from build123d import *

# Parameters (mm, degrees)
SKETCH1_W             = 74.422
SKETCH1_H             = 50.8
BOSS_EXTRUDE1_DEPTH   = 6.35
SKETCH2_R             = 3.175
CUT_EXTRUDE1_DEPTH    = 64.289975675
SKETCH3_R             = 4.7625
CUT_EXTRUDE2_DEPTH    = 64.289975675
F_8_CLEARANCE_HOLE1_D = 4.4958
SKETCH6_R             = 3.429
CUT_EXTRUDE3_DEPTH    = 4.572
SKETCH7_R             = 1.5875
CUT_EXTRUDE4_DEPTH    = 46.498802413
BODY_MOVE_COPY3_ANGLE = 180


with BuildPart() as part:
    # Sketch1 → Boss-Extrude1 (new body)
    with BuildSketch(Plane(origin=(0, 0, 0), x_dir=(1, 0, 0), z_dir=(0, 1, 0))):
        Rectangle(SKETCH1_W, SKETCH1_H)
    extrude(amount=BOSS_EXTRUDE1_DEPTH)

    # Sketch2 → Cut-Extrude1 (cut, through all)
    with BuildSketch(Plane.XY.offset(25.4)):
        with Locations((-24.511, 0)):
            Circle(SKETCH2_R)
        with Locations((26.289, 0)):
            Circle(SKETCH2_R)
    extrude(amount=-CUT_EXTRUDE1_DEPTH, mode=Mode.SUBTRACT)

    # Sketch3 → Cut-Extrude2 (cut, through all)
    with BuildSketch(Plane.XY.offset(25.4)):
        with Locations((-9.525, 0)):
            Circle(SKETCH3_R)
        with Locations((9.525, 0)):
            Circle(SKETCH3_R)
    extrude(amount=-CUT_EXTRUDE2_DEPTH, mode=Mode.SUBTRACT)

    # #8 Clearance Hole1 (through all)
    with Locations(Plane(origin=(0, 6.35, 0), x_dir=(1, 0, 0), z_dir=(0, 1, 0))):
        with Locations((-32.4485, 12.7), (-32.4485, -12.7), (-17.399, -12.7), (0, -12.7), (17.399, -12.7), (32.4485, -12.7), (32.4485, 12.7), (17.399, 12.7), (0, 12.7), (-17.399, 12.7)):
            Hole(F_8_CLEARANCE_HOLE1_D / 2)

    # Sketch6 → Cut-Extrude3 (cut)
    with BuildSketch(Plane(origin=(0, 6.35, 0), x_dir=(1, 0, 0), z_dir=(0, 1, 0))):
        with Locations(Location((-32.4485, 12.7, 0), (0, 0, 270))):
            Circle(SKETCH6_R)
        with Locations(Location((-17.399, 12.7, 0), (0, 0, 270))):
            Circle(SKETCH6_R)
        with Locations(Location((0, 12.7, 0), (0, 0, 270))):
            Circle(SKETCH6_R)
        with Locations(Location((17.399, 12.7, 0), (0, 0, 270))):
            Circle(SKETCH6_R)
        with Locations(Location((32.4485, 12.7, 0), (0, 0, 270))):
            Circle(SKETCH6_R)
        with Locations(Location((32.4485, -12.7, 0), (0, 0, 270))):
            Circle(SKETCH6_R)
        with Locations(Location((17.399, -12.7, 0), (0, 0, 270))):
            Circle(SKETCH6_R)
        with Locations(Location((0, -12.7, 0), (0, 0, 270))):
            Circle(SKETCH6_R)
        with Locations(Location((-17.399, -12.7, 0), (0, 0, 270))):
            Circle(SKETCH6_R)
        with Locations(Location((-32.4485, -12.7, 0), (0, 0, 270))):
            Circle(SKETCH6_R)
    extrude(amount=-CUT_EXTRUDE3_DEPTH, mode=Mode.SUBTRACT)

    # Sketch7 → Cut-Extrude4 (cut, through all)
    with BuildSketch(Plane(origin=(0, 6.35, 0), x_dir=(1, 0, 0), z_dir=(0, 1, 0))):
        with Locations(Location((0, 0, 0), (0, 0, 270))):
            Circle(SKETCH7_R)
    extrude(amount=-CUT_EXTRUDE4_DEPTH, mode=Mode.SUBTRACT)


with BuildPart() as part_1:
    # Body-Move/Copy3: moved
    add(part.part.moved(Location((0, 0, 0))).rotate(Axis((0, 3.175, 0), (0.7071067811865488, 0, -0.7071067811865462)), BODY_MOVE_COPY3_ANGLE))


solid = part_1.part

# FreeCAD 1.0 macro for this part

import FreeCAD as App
import Part
import Sketcher
Q = App.Units.Quantity

doc = App.newDocument("Part")
body = doc.addObject("PartDesign::Body", "Body")

# Sketch on XZ plane
sketch1 = body.newObject("Sketcher::SketchObject", "Sketch")
sketch1.AttachmentSupport = (doc.getObject("XZ_Plane"), [""])
sketch1.MapMode = "FlatFace"
sketch1.addGeometry(Part.LineSegment(App.Vector(-37, -25, 0), App.Vector(-37, 25, 0)), False)
sketch1.addGeometry(Part.LineSegment(App.Vector(-37, 25, 0), App.Vector(37, 25, 0)), False)
sketch1.addGeometry(Part.LineSegment(App.Vector(37, 25, 0), App.Vector(37, -25, 0)), False)
sketch1.addGeometry(Part.LineSegment(App.Vector(37, -25, 0), App.Vector(-37, -25, 0)), False)
sketch1.addConstraint(Sketcher.Constraint("Coincident", 0, 2, 1, 1))
sketch1.addConstraint(Sketcher.Constraint("Coincident", 1, 2, 2, 1))
sketch1.addConstraint(Sketcher.Constraint("Coincident", 2, 2, 3, 1))
sketch1.addConstraint(Sketcher.Constraint("Coincident", 3, 2, 0, 1))
sketch1.addConstraint(Sketcher.Constraint("Vertical", 0))
sketch1.addConstraint(Sketcher.Constraint("Horizontal", 1))
sketch1.addConstraint(Sketcher.Constraint("Vertical", 2))
sketch1.addConstraint(Sketcher.Constraint("Horizontal", 3))
sketch1.addConstraint(Sketcher.Constraint("Symmetric", 0, 2, 2, 2, -1, 1))
sketch1.addConstraint(Sketcher.Constraint("DistanceY", 0, 1, 0, 2, Q("2 in")))
sketch1.addConstraint(Sketcher.Constraint("DistanceX", 1, 1, 1, 2, Q("2.93 in")))
pad1 = body.newObject("PartDesign::Pad", "Pad")
pad1.Profile = sketch1
pad1.Length = Q("0.25 in")
pad1.Reversed = True

# Sketch on XY plane
sketch2 = body.newObject("Sketcher::SketchObject", "Sketch001")
sketch2.AttachmentSupport = (doc.getObject("XY_Plane"), [""])
sketch2.MapMode = "FlatFace"
sketch2.AttachmentOffset = App.Placement(App.Vector(0, 0, 1 * 25.4), App.Rotation())
sketch2.addGeometry(Part.Circle(App.Vector(-24.5, 0, 0), App.Vector(0, 0, 1), 3.2), False)
sketch2.addGeometry(Part.Circle(App.Vector(26.3, 0, 0), App.Vector(0, 0, 1), 3.2), False)
sketch2.addConstraint(Sketcher.Constraint("Equal", 0, 1))
sketch2.addConstraint(Sketcher.Constraint("PointOnObject", 0, 3, -1))
sketch2.addConstraint(Sketcher.Constraint("PointOnObject", 1, 3, -1))
sketch2.addConstraint(Sketcher.Constraint("Diameter", 0, Q("0.25 in")))
sketch2.addConstraint(Sketcher.Constraint("DistanceX", 0, 3, 1, 3, Q("2 in")))
sketch2.addConstraint(Sketcher.Constraint("DistanceX", 0, 3, -1, 1, Q("0.965 in")))
pocket1 = body.newObject("PartDesign::Pocket", "Pocket")
pocket1.Profile = sketch2
pocket1.Type = "ThroughAll"

# Sketch on XY plane
sketch3 = body.newObject("Sketcher::SketchObject", "Sketch002")
sketch3.AttachmentSupport = (doc.getObject("XY_Plane"), [""])
sketch3.MapMode = "FlatFace"
sketch3.AttachmentOffset = App.Placement(App.Vector(0, 0, 1 * 25.4), App.Rotation())
sketch3.addGeometry(Part.Circle(App.Vector(-9.5, 0, 0), App.Vector(0, 0, 1), 4.8), False)
sketch3.addGeometry(Part.Circle(App.Vector(9.5, 0, 0), App.Vector(0, 0, 1), 4.8), False)
sketch3.addConstraint(Sketcher.Constraint("Equal", 0, 1))
sketch3.addConstraint(Sketcher.Constraint("Symmetric", 0, 3, 1, 3, -1, 1))
sketch3.addConstraint(Sketcher.Constraint("PointOnObject", 0, 3, -1))
sketch3.addConstraint(Sketcher.Constraint("Diameter", 0, Q("0.375 in")))
sketch3.addConstraint(Sketcher.Constraint("DistanceX", 0, 3, 1, 3, Q("0.75 in")))
pocket2 = body.newObject("PartDesign::Pocket", "Pocket001")
pocket2.Profile = sketch3
pocket2.Type = "ThroughAll"

# Sketch on XZ plane
sketch4 = body.newObject("Sketcher::SketchObject", "Sketch003")
sketch4.AttachmentSupport = (doc.getObject("XZ_Plane"), [""])
sketch4.MapMode = "FlatFace"
sketch4.AttachmentOffset = App.Placement(App.Vector(0, 0, -0.25 * 25.4), App.Rotation())
sketch4.addGeometry(Part.Circle(App.Vector(-32.4, -12.7, 0), App.Vector(0, 0, 1), 2.2), False)
sketch4.addGeometry(Part.Circle(App.Vector(-32.4, 12.7, 0), App.Vector(0, 0, 1), 2.2), False)
sketch4.addGeometry(Part.Circle(App.Vector(-17.4, 12.7, 0), App.Vector(0, 0, 1), 2.2), False)
sketch4.addGeometry(Part.Circle(App.Vector(0, 12.7, 0), App.Vector(0, 0, 1), 2.2), False)
sketch4.addGeometry(Part.Circle(App.Vector(17.4, 12.7, 0), App.Vector(0, 0, 1), 2.2), False)
sketch4.addGeometry(Part.Circle(App.Vector(32.4, 12.7, 0), App.Vector(0, 0, 1), 2.2), False)
sketch4.addGeometry(Part.Circle(App.Vector(32.4, -12.7, 0), App.Vector(0, 0, 1), 2.2), False)
sketch4.addGeometry(Part.Circle(App.Vector(17.4, -12.7, 0), App.Vector(0, 0, 1), 2.2), False)
sketch4.addGeometry(Part.Circle(App.Vector(0, -12.7, 0), App.Vector(0, 0, 1), 2.2), False)
sketch4.addGeometry(Part.Circle(App.Vector(-17.4, -12.7, 0), App.Vector(0, 0, 1), 2.2), False)
sketch4.addConstraint(Sketcher.Constraint("Equal", 0, 1))
sketch4.addConstraint(Sketcher.Constraint("Equal", 1, 2))
sketch4.addConstraint(Sketcher.Constraint("Equal", 2, 3))
sketch4.addConstraint(Sketcher.Constraint("Equal", 3, 4))
sketch4.addConstraint(Sketcher.Constraint("Equal", 4, 5))
sketch4.addConstraint(Sketcher.Constraint("Equal", 5, 6))
sketch4.addConstraint(Sketcher.Constraint("Equal", 6, 7))
sketch4.addConstraint(Sketcher.Constraint("Equal", 7, 8))
sketch4.addConstraint(Sketcher.Constraint("Equal", 8, 9))
sketch4.addConstraint(Sketcher.Constraint("Symmetric", 0, 3, 5, 3, -1, 1))
sketch4.addConstraint(Sketcher.Constraint("Symmetric", 1, 3, 6, 3, -1, 1))
sketch4.addConstraint(Sketcher.Constraint("Symmetric", 2, 3, 7, 3, -1, 1))
sketch4.addConstraint(Sketcher.Constraint("Symmetric", 3, 3, 8, 3, -1, 1))
sketch4.addConstraint(Sketcher.Constraint("Symmetric", 4, 3, 9, 3, -1, 1))
sketch4.addConstraint(Sketcher.Constraint("Symmetric", 2, 3, 4, 3, -2))
sketch4.addConstraint(Sketcher.Constraint("Symmetric", 1, 3, 5, 3, -2))
sketch4.addConstraint(Sketcher.Constraint("PointOnObject", 3, 3, -2))
sketch4.addConstraint(Sketcher.Constraint("Horizontal", 1, 3, 2, 3))
sketch4.addConstraint(Sketcher.Constraint("Horizontal", 2, 3, 3, 3))
sketch4.addConstraint(Sketcher.Constraint("Diameter", 0, Q("0.177 in")))
sketch4.addConstraint(Sketcher.Constraint("DistanceY", 0, 3, 1, 3, Q("1 in")))
sketch4.addConstraint(Sketcher.Constraint("DistanceX", 2, 3, 4, 3, Q("1.37 in")))
sketch4.addConstraint(Sketcher.Constraint("DistanceX", 1, 3, 5, 3, Q("2.555 in")))
doc.recompute()
hole = body.newObject("PartDesign::Hole", "Hole")
hole.Profile = sketch4
hole.ThreadType = "None"
hole.Diameter = Q("0.177 in")
hole.DepthType = "ThroughAll"
hole.Reversed = True

# Sketch on XZ plane
sketch5 = body.newObject("Sketcher::SketchObject", "Sketch004")
sketch5.AttachmentSupport = (doc.getObject("XZ_Plane"), [""])
sketch5.MapMode = "FlatFace"
sketch5.AttachmentOffset = App.Placement(App.Vector(0, 0, -0.25 * 25.4), App.Rotation())
sketch5.addGeometry(Part.Circle(App.Vector(-32.4, -12.7, 0), App.Vector(0, 0, 1), 3.4), False)
sketch5.addGeometry(Part.Circle(App.Vector(-17.4, -12.7, 0), App.Vector(0, 0, 1), 3.4), False)
sketch5.addGeometry(Part.Circle(App.Vector(0, -12.7, 0), App.Vector(0, 0, 1), 3.4), False)
sketch5.addGeometry(Part.Circle(App.Vector(17.4, -12.7, 0), App.Vector(0, 0, 1), 3.4), False)
sketch5.addGeometry(Part.Circle(App.Vector(32.4, -12.7, 0), App.Vector(0, 0, 1), 3.4), False)
sketch5.addGeometry(Part.Circle(App.Vector(32.4, 12.7, 0), App.Vector(0, 0, 1), 3.4), False)
sketch5.addGeometry(Part.Circle(App.Vector(17.4, 12.7, 0), App.Vector(0, 0, 1), 3.4), False)
sketch5.addGeometry(Part.Circle(App.Vector(0, 12.7, 0), App.Vector(0, 0, 1), 3.4), False)
sketch5.addGeometry(Part.Circle(App.Vector(-17.4, 12.7, 0), App.Vector(0, 0, 1), 3.4), False)
sketch5.addGeometry(Part.Circle(App.Vector(-32.4, 12.7, 0), App.Vector(0, 0, 1), 3.4), False)
sketch5.addConstraint(Sketcher.Constraint("Equal", 0, 1))
sketch5.addConstraint(Sketcher.Constraint("Equal", 1, 2))
sketch5.addConstraint(Sketcher.Constraint("Equal", 2, 3))
sketch5.addConstraint(Sketcher.Constraint("Equal", 3, 4))
sketch5.addConstraint(Sketcher.Constraint("Equal", 4, 5))
sketch5.addConstraint(Sketcher.Constraint("Equal", 5, 6))
sketch5.addConstraint(Sketcher.Constraint("Equal", 6, 7))
sketch5.addConstraint(Sketcher.Constraint("Equal", 7, 8))
sketch5.addConstraint(Sketcher.Constraint("Equal", 8, 9))
sketch5.addConstraint(Sketcher.Constraint("Symmetric", 0, 3, 5, 3, -1, 1))
sketch5.addConstraint(Sketcher.Constraint("Symmetric", 1, 3, 6, 3, -1, 1))
sketch5.addConstraint(Sketcher.Constraint("Symmetric", 2, 3, 7, 3, -1, 1))
sketch5.addConstraint(Sketcher.Constraint("Symmetric", 3, 3, 8, 3, -1, 1))
sketch5.addConstraint(Sketcher.Constraint("Symmetric", 4, 3, 9, 3, -1, 1))
sketch5.addConstraint(Sketcher.Constraint("Symmetric", 1, 3, 3, 3, -2))
sketch5.addConstraint(Sketcher.Constraint("Symmetric", 0, 3, 4, 3, -2))
sketch5.addConstraint(Sketcher.Constraint("PointOnObject", 2, 3, -2))
sketch5.addConstraint(Sketcher.Constraint("Horizontal", 0, 3, 1, 3))
sketch5.addConstraint(Sketcher.Constraint("Horizontal", 1, 3, 2, 3))
sketch5.addConstraint(Sketcher.Constraint("Diameter", 0, Q("0.27 in")))
sketch5.addConstraint(Sketcher.Constraint("DistanceY", 4, 3, 5, 3, Q("1 in")))
sketch5.addConstraint(Sketcher.Constraint("DistanceX", 1, 3, 3, 3, Q("1.37 in")))
sketch5.addConstraint(Sketcher.Constraint("DistanceX", 0, 3, 4, 3, Q("2.555 in")))
pocket3 = body.newObject("PartDesign::Pocket", "Pocket002")
pocket3.Profile = sketch5
pocket3.Length = Q("0.18 in")
pocket3.Reversed = True

# Sketch on XZ plane
sketch6 = body.newObject("Sketcher::SketchObject", "Sketch005")
sketch6.AttachmentSupport = (doc.getObject("XZ_Plane"), [""])
sketch6.MapMode = "FlatFace"
sketch6.AttachmentOffset = App.Placement(App.Vector(0, 0, -0.25 * 25.4), App.Rotation())
sketch6.addGeometry(Part.Circle(App.Vector(0, 0, 0), App.Vector(0, 0, 1), 1.6), False)
sketch6.addConstraint(Sketcher.Constraint("Coincident", 0, 3, -1, 1))
sketch6.addConstraint(Sketcher.Constraint("Diameter", 0, Q("0.125 in")))
pocket4 = body.newObject("PartDesign::Pocket", "Pocket003")
pocket4.Profile = sketch6
pocket4.Type = "ThroughAll"
pocket4.Reversed = True
body2 = doc.addObject("PartDesign::Body", "Body001")
doc.recompute()

body.Placement = App.Placement(App.Vector(0, 6.35, 0), App.Rotation(App.Vector(0.707106781, 0, -0.707106781), 180))
boolean = body2.newObject("PartDesign::Boolean", "Boolean")
boolean.Type = "Fuse"
boolean.addObjects([body])

doc.recompute()
